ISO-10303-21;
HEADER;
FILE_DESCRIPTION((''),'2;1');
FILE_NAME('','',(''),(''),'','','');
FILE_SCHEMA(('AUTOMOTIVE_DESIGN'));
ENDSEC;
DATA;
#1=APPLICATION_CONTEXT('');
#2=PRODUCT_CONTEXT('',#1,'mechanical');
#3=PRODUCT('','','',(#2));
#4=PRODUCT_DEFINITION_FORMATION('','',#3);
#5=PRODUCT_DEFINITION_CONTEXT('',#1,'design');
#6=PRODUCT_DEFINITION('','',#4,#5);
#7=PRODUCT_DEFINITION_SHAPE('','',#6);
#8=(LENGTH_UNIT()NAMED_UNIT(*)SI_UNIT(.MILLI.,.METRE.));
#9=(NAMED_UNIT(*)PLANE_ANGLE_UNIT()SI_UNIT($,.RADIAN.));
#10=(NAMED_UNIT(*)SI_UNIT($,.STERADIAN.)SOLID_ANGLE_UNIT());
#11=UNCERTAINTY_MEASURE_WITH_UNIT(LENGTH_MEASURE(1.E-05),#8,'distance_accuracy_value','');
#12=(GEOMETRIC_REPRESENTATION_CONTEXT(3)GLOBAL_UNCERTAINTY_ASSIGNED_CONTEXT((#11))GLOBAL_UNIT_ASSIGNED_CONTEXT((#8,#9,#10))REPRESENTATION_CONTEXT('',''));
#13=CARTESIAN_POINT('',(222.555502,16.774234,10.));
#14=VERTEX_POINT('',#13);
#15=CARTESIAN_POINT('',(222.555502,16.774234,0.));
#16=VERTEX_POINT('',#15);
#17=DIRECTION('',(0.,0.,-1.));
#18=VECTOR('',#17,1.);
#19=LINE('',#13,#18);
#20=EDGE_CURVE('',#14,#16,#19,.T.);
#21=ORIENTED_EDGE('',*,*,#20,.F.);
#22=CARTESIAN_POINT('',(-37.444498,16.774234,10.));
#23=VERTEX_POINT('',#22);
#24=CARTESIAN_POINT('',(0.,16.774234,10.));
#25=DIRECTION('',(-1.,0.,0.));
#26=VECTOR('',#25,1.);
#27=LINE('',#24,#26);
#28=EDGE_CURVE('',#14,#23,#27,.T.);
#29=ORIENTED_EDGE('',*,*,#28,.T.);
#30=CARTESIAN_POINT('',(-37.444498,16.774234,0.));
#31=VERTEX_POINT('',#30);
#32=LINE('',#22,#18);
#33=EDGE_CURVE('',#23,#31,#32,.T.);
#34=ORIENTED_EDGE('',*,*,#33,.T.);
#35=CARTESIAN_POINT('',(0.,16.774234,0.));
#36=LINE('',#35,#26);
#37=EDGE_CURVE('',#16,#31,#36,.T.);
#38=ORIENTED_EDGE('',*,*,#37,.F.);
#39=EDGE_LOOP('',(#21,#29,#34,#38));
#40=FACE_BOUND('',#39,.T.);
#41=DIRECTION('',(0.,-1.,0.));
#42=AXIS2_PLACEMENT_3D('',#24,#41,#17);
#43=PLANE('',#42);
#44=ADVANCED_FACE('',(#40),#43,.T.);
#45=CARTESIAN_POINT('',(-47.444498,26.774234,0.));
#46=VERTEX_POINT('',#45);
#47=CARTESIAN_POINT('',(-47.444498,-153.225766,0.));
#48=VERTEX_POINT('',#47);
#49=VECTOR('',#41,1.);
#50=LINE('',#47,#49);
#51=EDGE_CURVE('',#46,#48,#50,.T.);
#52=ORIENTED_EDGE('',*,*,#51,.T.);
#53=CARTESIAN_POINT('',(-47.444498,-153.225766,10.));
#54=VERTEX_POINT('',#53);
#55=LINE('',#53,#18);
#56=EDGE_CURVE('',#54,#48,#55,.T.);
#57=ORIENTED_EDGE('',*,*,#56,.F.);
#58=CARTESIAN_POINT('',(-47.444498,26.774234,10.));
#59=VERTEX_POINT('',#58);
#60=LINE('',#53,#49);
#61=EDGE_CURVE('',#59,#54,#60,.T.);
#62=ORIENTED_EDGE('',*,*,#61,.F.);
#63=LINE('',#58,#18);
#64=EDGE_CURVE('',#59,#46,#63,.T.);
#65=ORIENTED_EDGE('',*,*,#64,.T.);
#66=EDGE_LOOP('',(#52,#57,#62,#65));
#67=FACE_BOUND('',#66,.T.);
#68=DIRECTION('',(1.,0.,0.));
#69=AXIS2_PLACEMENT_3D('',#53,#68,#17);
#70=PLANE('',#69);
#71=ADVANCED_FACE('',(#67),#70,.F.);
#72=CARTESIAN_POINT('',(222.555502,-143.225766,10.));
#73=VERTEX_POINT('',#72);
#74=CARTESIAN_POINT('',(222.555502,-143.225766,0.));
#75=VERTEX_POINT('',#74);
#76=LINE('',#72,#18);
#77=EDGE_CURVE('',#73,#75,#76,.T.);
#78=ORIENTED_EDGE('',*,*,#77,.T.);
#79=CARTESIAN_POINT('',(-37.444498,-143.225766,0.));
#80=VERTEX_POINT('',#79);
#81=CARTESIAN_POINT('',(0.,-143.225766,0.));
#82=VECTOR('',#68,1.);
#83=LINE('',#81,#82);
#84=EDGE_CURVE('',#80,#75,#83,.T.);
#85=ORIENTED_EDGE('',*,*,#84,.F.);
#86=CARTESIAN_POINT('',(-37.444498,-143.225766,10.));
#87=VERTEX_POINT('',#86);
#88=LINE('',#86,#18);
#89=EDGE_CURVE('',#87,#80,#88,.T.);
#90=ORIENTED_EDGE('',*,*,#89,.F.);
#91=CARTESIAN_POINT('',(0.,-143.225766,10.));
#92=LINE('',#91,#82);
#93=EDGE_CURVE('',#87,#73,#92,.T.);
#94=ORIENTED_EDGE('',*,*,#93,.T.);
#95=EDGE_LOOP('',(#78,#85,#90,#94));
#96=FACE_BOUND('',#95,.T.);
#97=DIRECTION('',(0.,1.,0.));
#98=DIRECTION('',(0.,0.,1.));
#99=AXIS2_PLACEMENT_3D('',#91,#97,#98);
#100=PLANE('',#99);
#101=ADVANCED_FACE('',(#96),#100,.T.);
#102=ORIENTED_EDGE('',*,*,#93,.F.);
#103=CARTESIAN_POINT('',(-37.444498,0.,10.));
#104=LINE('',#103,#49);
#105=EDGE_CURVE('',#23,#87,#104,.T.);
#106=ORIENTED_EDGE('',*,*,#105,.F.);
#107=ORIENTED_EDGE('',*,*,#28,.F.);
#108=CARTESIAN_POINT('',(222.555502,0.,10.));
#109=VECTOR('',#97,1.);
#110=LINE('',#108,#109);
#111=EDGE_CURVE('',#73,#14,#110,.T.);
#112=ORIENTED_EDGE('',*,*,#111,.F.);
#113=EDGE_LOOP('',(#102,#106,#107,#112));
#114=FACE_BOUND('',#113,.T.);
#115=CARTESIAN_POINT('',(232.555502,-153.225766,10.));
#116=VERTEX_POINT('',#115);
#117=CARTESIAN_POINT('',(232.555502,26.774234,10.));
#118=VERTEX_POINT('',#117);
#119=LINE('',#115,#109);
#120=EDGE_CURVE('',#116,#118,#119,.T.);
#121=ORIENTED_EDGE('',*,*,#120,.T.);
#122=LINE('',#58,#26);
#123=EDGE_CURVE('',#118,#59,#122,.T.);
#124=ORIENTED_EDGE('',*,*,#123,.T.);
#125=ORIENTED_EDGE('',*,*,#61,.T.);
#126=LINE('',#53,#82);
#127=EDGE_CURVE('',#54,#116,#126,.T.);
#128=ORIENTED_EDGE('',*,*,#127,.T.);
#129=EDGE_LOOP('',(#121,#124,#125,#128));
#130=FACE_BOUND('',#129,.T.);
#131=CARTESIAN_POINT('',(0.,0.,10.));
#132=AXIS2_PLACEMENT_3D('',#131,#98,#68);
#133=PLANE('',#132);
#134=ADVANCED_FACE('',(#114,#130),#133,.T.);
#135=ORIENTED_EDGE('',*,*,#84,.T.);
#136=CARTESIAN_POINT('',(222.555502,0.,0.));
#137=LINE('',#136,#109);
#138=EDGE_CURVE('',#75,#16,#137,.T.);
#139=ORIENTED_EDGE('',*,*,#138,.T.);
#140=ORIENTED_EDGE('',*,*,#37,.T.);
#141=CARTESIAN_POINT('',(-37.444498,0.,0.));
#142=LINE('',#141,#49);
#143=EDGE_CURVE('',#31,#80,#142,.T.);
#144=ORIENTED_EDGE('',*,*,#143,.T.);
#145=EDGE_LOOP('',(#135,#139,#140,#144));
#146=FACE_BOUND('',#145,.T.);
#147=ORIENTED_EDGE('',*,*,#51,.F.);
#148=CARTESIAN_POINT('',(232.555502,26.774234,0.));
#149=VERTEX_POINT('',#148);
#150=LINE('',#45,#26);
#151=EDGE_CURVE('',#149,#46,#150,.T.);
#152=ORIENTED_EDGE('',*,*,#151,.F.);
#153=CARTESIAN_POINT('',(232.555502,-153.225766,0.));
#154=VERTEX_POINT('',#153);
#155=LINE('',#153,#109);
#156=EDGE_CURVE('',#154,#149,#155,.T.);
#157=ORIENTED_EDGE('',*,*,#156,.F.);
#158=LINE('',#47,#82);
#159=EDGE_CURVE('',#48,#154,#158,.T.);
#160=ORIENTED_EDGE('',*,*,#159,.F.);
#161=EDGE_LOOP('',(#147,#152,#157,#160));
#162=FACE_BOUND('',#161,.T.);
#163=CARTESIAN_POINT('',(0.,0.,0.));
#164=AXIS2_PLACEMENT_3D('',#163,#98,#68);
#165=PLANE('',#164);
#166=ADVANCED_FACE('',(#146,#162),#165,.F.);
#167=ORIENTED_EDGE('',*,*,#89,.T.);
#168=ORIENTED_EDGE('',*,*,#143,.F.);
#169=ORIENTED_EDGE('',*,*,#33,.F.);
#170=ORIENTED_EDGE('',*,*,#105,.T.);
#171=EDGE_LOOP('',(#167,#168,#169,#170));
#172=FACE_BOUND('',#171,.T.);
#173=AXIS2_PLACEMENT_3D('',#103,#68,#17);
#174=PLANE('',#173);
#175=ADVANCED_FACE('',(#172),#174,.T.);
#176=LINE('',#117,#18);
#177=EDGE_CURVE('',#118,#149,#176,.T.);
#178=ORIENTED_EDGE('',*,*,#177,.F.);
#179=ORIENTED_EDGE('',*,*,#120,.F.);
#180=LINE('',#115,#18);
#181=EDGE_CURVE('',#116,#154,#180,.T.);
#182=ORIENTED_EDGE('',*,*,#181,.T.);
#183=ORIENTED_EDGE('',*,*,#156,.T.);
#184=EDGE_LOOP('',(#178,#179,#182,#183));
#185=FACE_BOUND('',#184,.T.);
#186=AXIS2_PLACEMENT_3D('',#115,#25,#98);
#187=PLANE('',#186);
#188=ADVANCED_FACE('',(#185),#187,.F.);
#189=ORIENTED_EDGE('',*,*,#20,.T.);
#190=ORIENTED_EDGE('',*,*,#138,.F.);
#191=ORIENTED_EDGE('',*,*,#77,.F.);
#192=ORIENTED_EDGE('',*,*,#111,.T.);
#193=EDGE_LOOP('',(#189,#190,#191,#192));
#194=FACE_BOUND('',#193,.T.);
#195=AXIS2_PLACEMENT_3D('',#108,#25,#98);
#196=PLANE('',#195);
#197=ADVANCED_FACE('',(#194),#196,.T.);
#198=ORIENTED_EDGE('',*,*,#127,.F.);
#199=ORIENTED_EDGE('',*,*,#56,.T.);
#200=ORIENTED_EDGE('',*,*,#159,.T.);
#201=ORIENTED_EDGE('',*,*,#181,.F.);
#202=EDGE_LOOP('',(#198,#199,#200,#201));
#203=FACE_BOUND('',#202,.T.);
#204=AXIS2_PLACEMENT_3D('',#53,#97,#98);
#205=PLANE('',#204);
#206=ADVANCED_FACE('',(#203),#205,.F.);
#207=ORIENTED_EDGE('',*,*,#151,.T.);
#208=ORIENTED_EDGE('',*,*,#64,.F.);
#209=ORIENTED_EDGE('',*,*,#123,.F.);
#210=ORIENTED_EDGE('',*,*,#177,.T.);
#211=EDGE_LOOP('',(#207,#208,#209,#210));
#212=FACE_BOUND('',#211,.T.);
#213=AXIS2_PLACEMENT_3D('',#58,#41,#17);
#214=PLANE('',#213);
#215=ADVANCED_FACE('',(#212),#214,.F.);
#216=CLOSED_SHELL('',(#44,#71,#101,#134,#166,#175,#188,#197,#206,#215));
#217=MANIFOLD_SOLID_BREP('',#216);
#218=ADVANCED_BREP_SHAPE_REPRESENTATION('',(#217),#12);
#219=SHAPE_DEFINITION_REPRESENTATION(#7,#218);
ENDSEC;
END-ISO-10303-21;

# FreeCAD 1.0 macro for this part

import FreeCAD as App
import Part
import Sketcher

doc = App.newDocument("Part")
body = doc.addObject("PartDesign::Body", "Body")

sketch1 = body.newObject("Sketcher::SketchObject", "Sketch")
sketch1.AttachmentSupport = (doc.getObject("XY_Plane"), [""])
sketch1.MapMode = "FlatFace"
sketch1.addGeometry(Part.LineSegment(App.Vector(-47, 27, 0), App.Vector(-47, -153, 0)), False)
sketch1.addGeometry(Part.LineSegment(App.Vector(-47, -153, 0), App.Vector(233, -153, 0)), False)
sketch1.addGeometry(Part.LineSegment(App.Vector(233, -153, 0), App.Vector(233, 27, 0)), False)
sketch1.addGeometry(Part.LineSegment(App.Vector(233, 27, 0), App.Vector(-47, 27, 0)), False)
sketch1.addGeometry(Part.LineSegment(App.Vector(223, -143, 0), App.Vector(-37, -143, 0)), False)
sketch1.addGeometry(Part.LineSegment(App.Vector(-37, -143, 0), App.Vector(-37, 17, 0)), False)
sketch1.addGeometry(Part.LineSegment(App.Vector(-37, 17, 0), App.Vector(223, 17, 0)), False)
sketch1.addGeometry(Part.LineSegment(App.Vector(223, 17, 0), App.Vector(223, -143, 0)), False)
sketch1.addConstraint(Sketcher.Constraint("Coincident", 0, 2, 1, 1))
sketch1.addConstraint(Sketcher.Constraint("Coincident", 1, 2, 2, 1))
sketch1.addConstraint(Sketcher.Constraint("Coincident", 2, 2, 3, 1))
sketch1.addConstraint(Sketcher.Constraint("Coincident", 3, 2, 0, 1))
sketch1.addConstraint(Sketcher.Constraint("Coincident", 4, 2, 5, 1))
sketch1.addConstraint(Sketcher.Constraint("Coincident", 5, 2, 6, 1))
sketch1.addConstraint(Sketcher.Constraint("Coincident", 6, 2, 7, 1))
sketch1.addConstraint(Sketcher.Constraint("Coincident", 7, 2, 4, 1))
sketch1.addConstraint(Sketcher.Constraint("Vertical", 0))
sketch1.addConstraint(Sketcher.Constraint("Horizontal", 1))
sketch1.addConstraint(Sketcher.Constraint("Vertical", 2))
sketch1.addConstraint(Sketcher.Constraint("Horizontal", 3))
sketch1.addConstraint(Sketcher.Constraint("Horizontal", 4))
sketch1.addConstraint(Sketcher.Constraint("Vertical", 5))
sketch1.addConstraint(Sketcher.Constraint("Horizontal", 6))
sketch1.addConstraint(Sketcher.Constraint("Vertical", 7))
sketch1.addConstraint(Sketcher.Constraint("DistanceX", 1, 1, 1, 2, 280.0))
sketch1.addConstraint(Sketcher.Constraint("DistanceX", 4, 2, 4, 1, 260.0))
sketch1.addConstraint(Sketcher.Constraint("DistanceY", 0, 2, 0, 1, 180.0))
sketch1.addConstraint(Sketcher.Constraint("DistanceY", 5, 1, 5, 2, 160.0))
sketch1.addConstraint(Sketcher.Constraint("DistanceX", 0, 2, 4, 2, 10.0))
sketch1.addConstraint(Sketcher.Constraint("DistanceY", 0, 2, 4, 2, 10.0))
sketch1.addConstraint(Sketcher.Constraint("DistanceX", 0, 2, -1, 1, 47.444498))
sketch1.addConstraint(Sketcher.Constraint("DistanceY", 0, 2, -1, 1, 153.225766))
pad1 = body.newObject("PartDesign::Pad", "Pad")
pad1.Profile = sketch1
pad1.Length = 10

doc.recompute()
